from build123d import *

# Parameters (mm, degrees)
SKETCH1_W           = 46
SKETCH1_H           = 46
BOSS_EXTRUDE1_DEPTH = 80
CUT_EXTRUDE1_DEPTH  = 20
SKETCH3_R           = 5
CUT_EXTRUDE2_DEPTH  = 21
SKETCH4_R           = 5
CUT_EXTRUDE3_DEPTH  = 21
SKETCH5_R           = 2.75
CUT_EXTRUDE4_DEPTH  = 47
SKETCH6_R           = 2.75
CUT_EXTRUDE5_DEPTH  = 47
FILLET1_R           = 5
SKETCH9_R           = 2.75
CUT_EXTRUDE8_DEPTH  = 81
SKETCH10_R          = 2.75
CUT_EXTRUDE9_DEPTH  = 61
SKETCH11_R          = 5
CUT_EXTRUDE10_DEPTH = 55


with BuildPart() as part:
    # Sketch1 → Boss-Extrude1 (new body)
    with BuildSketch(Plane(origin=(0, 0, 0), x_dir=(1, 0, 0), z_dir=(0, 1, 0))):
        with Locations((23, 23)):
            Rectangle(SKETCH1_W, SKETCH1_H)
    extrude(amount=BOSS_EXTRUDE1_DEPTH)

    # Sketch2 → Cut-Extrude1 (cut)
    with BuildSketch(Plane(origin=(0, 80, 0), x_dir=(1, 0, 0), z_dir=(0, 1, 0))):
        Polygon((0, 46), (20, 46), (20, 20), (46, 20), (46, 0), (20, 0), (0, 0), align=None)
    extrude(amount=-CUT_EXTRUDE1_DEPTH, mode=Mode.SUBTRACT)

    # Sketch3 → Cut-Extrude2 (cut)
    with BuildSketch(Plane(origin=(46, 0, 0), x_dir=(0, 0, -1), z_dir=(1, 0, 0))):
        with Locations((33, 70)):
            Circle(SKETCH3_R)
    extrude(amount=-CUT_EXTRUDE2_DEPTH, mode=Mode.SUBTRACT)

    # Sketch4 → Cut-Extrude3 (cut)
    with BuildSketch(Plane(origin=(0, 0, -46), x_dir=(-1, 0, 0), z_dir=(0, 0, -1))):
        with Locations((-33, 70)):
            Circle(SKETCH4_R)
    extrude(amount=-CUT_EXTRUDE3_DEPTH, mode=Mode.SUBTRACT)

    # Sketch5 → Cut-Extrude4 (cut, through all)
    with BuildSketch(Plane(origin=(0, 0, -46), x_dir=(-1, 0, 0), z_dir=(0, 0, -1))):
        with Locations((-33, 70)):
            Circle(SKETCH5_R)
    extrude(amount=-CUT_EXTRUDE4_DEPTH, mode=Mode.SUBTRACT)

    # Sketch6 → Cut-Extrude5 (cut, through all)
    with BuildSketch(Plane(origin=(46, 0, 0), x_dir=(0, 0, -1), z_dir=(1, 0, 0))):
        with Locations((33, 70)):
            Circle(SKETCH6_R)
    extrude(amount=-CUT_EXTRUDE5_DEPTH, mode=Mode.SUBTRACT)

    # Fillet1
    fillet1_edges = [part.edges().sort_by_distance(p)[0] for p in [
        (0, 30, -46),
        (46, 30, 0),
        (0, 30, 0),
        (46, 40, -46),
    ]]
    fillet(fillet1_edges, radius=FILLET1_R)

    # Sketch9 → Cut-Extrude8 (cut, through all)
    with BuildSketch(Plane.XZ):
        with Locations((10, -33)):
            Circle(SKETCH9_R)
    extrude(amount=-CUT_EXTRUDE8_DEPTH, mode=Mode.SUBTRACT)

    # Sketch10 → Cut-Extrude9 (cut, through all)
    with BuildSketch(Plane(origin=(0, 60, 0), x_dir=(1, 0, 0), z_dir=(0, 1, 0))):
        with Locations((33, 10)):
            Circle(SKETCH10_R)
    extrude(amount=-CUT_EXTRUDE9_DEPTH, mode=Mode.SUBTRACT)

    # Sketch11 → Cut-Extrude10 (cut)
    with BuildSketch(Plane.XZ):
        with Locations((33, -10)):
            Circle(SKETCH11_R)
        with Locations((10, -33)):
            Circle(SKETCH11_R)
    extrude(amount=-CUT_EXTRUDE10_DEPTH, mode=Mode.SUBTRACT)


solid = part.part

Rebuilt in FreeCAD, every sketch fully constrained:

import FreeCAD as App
import Part
import Sketcher
Q = App.Units.Quantity


def edges_at(feature, points):
    """Names of the edges that pass closest to the given points."""
    edges = feature.Shape.Edges
    near = lambda p: min(range(len(edges)), key=lambda i: edges[i].distToShape(Part.Vertex(*p))[0])
    return sorted({f"Edge{near(p) + 1}" for p in points})

doc = App.newDocument("Part")
body = doc.addObject("PartDesign::Body", "Body")

# Sketch on XZ plane
sketch1 = body.newObject("Sketcher::SketchObject", "Sketch")
sketch1.AttachmentSupport = (doc.getObject("XZ_Plane"), [""])
sketch1.MapMode = "FlatFace"
sketch1.addGeometry(Part.LineSegment(App.Vector(0, -46, 0), App.Vector(0, 0, 0)), False)
sketch1.addGeometry(Part.LineSegment(App.Vector(0, 0, 0), App.Vector(46, 0, 0)), False)
sketch1.addGeometry(Part.LineSegment(App.Vector(46, 0, 0), App.Vector(46, -46, 0)), False)
sketch1.addGeometry(Part.LineSegment(App.Vector(46, -46, 0), App.Vector(0, -46, 0)), False)
sketch1.addConstraint(Sketcher.Constraint("Coincident", 0, 2, 1, 1))
sketch1.addConstraint(Sketcher.Constraint("Coincident", 1, 2, 2, 1))
sketch1.addConstraint(Sketcher.Constraint("Coincident", 2, 2, 3, 1))
sketch1.addConstraint(Sketcher.Constraint("Coincident", 3, 2, 0, 1))
sketch1.addConstraint(Sketcher.Constraint("Vertical", 0))
sketch1.addConstraint(Sketcher.Constraint("Horizontal", 1))
sketch1.addConstraint(Sketcher.Constraint("Vertical", 2))
sketch1.addConstraint(Sketcher.Constraint("Horizontal", 3))
sketch1.addConstraint(Sketcher.Constraint("Coincident", 0, 2, -1, 1))
sketch1.addConstraint(Sketcher.Constraint("Equal", 3, 0))
sketch1.addConstraint(Sketcher.Constraint("DistanceX", 1, 1, 1, 2, Q("46 mm")))
pad1 = body.newObject("PartDesign::Pad", "Pad")
pad1.Profile = sketch1
pad1.Length = 80
pad1.Reversed = True

# Sketch on XZ plane
sketch2 = body.newObject("Sketcher::SketchObject", "Sketch001")
sketch2.AttachmentSupport = (doc.getObject("XZ_Plane"), [""])
sketch2.MapMode = "FlatFace"
sketch2.AttachmentOffset = App.Placement(App.Vector(0, 0, -80), App.Rotation())
sketch2.addGeometry(Part.LineSegment(App.Vector(20, -46, 0), App.Vector(0, -46, 0)), False)
sketch2.addGeometry(Part.LineSegment(App.Vector(0, -46, 0), App.Vector(0, 0, 0)), False)
sketch2.addGeometry(Part.LineSegment(App.Vector(0, 0, 0), App.Vector(46, 0, 0)), False)
sketch2.addGeometry(Part.LineSegment(App.Vector(46, 0, 0), App.Vector(46, -20, 0)), False)
sketch2.addGeometry(Part.LineSegment(App.Vector(46, -20, 0), App.Vector(20, -20, 0)), False)
sketch2.addGeometry(Part.LineSegment(App.Vector(20, -20, 0), App.Vector(20, -46, 0)), False)
sketch2.addConstraint(Sketcher.Constraint("Coincident", 0, 2, 1, 1))
sketch2.addConstraint(Sketcher.Constraint("Coincident", 1, 2, 2, 1))
sketch2.addConstraint(Sketcher.Constraint("Coincident", 2, 2, 3, 1))
sketch2.addConstraint(Sketcher.Constraint("Coincident", 3, 2, 4, 1))
sketch2.addConstraint(Sketcher.Constraint("Coincident", 4, 2, 5, 1))
sketch2.addConstraint(Sketcher.Constraint("Coincident", 5, 2, 0, 1))
sketch2.addConstraint(Sketcher.Constraint("Horizontal", 0))
sketch2.addConstraint(Sketcher.Constraint("Vertical", 1))
sketch2.addConstraint(Sketcher.Constraint("Horizontal", 2))
sketch2.addConstraint(Sketcher.Constraint("Vertical", 3))
sketch2.addConstraint(Sketcher.Constraint("Horizontal", 4))
sketch2.addConstraint(Sketcher.Constraint("Vertical", 5))
sketch2.addConstraint(Sketcher.Constraint("Coincident", 1, 2, -1, 1))
sketch2.addConstraint(Sketcher.Constraint("Equal", 2, 1))
sketch2.addConstraint(Sketcher.Constraint("Equal", 0, 3))
sketch2.addConstraint(Sketcher.Constraint("DistanceX", 0, 2, 0, 1, Q("20 mm")))
sketch2.addConstraint(Sketcher.Constraint("DistanceX", 2, 1, 2, 2, Q("46 mm")))
pocket1 = body.newObject("PartDesign::Pocket", "Pocket")
pocket1.Profile = sketch2
pocket1.Length = 20
pocket1.Reversed = True

# Sketch on YZ plane
sketch3 = body.newObject("Sketcher::SketchObject", "Sketch002")
sketch3.AttachmentSupport = (doc.getObject("YZ_Plane"), [""])
sketch3.MapMode = "FlatFace"
sketch3.AttachmentOffset = App.Placement(App.Vector(0, 0, 46), App.Rotation())
sketch3.addGeometry(Part.Circle(App.Vector(70, -33, 0), App.Vector(0, 0, 1), 5), False)
sketch3.addConstraint(Sketcher.Constraint("Diameter", 0, Q("10 mm")))
sketch3.addConstraint(Sketcher.Constraint("DistanceX", -1, 1, 0, 3, Q("70 mm")))
sketch3.addConstraint(Sketcher.Constraint("DistanceY", 0, 3, -1, 1, Q("33 mm")))
pocket2 = body.newObject("PartDesign::Pocket", "Pocket001")
pocket2.Profile = sketch3
pocket2.Length = 21

# Sketch on XY plane
sketch4 = body.newObject("Sketcher::SketchObject", "Sketch003")
sketch4.AttachmentSupport = (doc.getObject("XY_Plane"), [""])
sketch4.MapMode = "FlatFace"
sketch4.AttachmentOffset = App.Placement(App.Vector(0, 0, -46), App.Rotation())
sketch4.addGeometry(Part.Circle(App.Vector(33, 70, 0), App.Vector(0, 0, 1), 5), False)
sketch4.addConstraint(Sketcher.Constraint("Diameter", 0, Q("10 mm")))
sketch4.addConstraint(Sketcher.Constraint("DistanceX", -1, 1, 0, 3, Q("33 mm")))
sketch4.addConstraint(Sketcher.Constraint("DistanceY", -1, 1, 0, 3, Q("70 mm")))
pocket3 = body.newObject("PartDesign::Pocket", "Pocket002")
pocket3.Profile = sketch4
pocket3.Length = 21
pocket3.Reversed = True

# Sketch on XY plane
sketch5 = body.newObject("Sketcher::SketchObject", "Sketch004")
sketch5.AttachmentSupport = (doc.getObject("XY_Plane"), [""])
sketch5.MapMode = "FlatFace"
sketch5.AttachmentOffset = App.Placement(App.Vector(0, 0, -46), App.Rotation())
sketch5.addGeometry(Part.Circle(App.Vector(33, 70, 0), App.Vector(0, 0, 1), 2.75), False)
sketch5.addConstraint(Sketcher.Constraint("Diameter", 0, Q("5.5 mm")))
sketch5.addConstraint(Sketcher.Constraint("DistanceX", -1, 1, 0, 3, Q("33 mm")))
sketch5.addConstraint(Sketcher.Constraint("DistanceY", -1, 1, 0, 3, Q("70 mm")))
pocket4 = body.newObject("PartDesign::Pocket", "Pocket003")
pocket4.Profile = sketch5
pocket4.Type = "ThroughAll"
pocket4.Reversed = True

# Sketch on YZ plane
sketch6 = body.newObject("Sketcher::SketchObject", "Sketch005")
sketch6.AttachmentSupport = (doc.getObject("YZ_Plane"), [""])
sketch6.MapMode = "FlatFace"
sketch6.AttachmentOffset = App.Placement(App.Vector(0, 0, 46), App.Rotation())
sketch6.addGeometry(Part.Circle(App.Vector(70, -33, 0), App.Vector(0, 0, 1), 2.75), False)
sketch6.addConstraint(Sketcher.Constraint("Diameter", 0, Q("5.5 mm")))
sketch6.addConstraint(Sketcher.Constraint("DistanceX", -1, 1, 0, 3, Q("70 mm")))
sketch6.addConstraint(Sketcher.Constraint("DistanceY", 0, 3, -1, 1, Q("33 mm")))
pocket5 = body.newObject("PartDesign::Pocket", "Pocket004")
pocket5.Profile = sketch6
pocket5.Type = "ThroughAll"
doc.recompute()

fillet = body.newObject("PartDesign::Fillet", "Fillet")
fillet.Base = (pocket5, edges_at(pocket5, [
    (0, 30, -46),
    (46, 30, 0),
    (0, 30, 0),
    (46, 40, -46),
]))
fillet.Radius = 5

# Sketch on XZ plane
sketch7 = body.newObject("Sketcher::SketchObject", "Sketch006")
sketch7.AttachmentSupport = (doc.getObject("XZ_Plane"), [""])
sketch7.MapMode = "FlatFace"
sketch7.addGeometry(Part.Circle(App.Vector(10, -33, 0), App.Vector(0, 0, 1), 2.75), False)
sketch7.addConstraint(Sketcher.Constraint("Diameter", 0, Q("5.5 mm")))
sketch7.addConstraint(Sketcher.Constraint("DistanceX", -1, 1, 0, 3, Q("10 mm")))
sketch7.addConstraint(Sketcher.Constraint("DistanceY", 0, 3, -1, 1, Q("33 mm")))
pocket6 = body.newObject("PartDesign::Pocket", "Pocket005")
pocket6.Profile = sketch7
pocket6.Type = "ThroughAll"

# Sketch on XZ plane
sketch8 = body.newObject("Sketcher::SketchObject", "Sketch007")
sketch8.AttachmentSupport = (doc.getObject("XZ_Plane"), [""])
sketch8.MapMode = "FlatFace"
sketch8.AttachmentOffset = App.Placement(App.Vector(0, 0, -60), App.Rotation())
sketch8.addGeometry(Part.Circle(App.Vector(33, -10, 0), App.Vector(0, 0, 1), 2.75), False)
sketch8.addConstraint(Sketcher.Constraint("Diameter", 0, Q("5.5 mm")))
sketch8.addConstraint(Sketcher.Constraint("DistanceX", -1, 1, 0, 3, Q("33 mm")))
sketch8.addConstraint(Sketcher.Constraint("DistanceY", 0, 3, -1, 1, Q("10 mm")))
pocket7 = body.newObject("PartDesign::Pocket", "Pocket006")
pocket7.Profile = sketch8
pocket7.Type = "ThroughAll"
pocket7.Reversed = True

# Sketch on XZ plane
sketch9 = body.newObject("Sketcher::SketchObject", "Sketch008")
sketch9.AttachmentSupport = (doc.getObject("XZ_Plane"), [""])
sketch9.MapMode = "FlatFace"
sketch9.addGeometry(Part.Circle(App.Vector(33, -10, 0), App.Vector(0, 0, 1), 5), False)
sketch9.addGeometry(Part.Circle(App.Vector(10, -33, 0), App.Vector(0, 0, 1), 5), False)
sketch9.addConstraint(Sketcher.Constraint("Equal", 0, 1))
sketch9.addConstraint(Sketcher.Constraint("Diameter", 0, Q("10 mm")))
sketch9.addConstraint(Sketcher.Constraint("DistanceX", -1, 1, 0, 3, Q("33 mm")))
sketch9.addConstraint(Sketcher.Constraint("DistanceY", 0, 3, -1, 1, Q("10 mm")))
sketch9.addConstraint(Sketcher.Constraint("DistanceX", -1, 1, 1, 3, Q("10 mm")))
sketch9.addConstraint(Sketcher.Constraint("DistanceY", 1, 3, -1, 1, Q("33 mm")))
pocket8 = body.newObject("PartDesign::Pocket", "Pocket007")
pocket8.Profile = sketch9
pocket8.Length = 55

doc.recompute()
